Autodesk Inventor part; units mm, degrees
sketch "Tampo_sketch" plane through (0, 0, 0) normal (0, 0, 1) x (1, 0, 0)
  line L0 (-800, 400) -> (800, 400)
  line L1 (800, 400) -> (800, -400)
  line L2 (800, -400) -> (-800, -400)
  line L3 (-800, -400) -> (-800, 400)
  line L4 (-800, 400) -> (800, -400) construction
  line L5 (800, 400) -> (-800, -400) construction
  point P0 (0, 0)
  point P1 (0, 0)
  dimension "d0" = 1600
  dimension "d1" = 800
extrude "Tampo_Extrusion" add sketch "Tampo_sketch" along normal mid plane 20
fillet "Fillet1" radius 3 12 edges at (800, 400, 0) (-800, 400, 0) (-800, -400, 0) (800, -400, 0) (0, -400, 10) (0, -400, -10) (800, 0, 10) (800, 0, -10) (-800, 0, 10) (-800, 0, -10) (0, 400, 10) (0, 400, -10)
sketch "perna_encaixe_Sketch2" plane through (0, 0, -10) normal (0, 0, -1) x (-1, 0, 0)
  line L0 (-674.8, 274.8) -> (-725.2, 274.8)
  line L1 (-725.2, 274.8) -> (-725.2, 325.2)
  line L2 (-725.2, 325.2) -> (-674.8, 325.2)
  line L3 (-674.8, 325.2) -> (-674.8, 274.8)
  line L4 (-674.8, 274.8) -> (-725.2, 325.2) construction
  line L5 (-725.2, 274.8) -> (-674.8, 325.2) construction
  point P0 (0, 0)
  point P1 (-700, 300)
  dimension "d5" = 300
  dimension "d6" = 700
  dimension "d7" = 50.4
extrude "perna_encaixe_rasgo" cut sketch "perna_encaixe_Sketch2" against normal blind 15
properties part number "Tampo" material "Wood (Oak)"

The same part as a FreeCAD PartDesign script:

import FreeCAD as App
import Part
import Sketcher

doc = App.newDocument("Part")
body = doc.addObject("PartDesign::Body", "Body")

# Sketch on XY plane
sketch1 = body.newObject("Sketcher::SketchObject", "Sketch")
sketch1.AttachmentSupport = (doc.getObject("XY_Plane"), [""])
sketch1.MapMode = "FlatFace"
sketch1.addGeometry([
    Part.LineSegment(App.Vector(800, 400, 0), App.Vector(-800, 400, 0)),
    Part.LineSegment(App.Vector(-800, 400, 0), App.Vector(-800, -400, 0)),
    Part.LineSegment(App.Vector(-800, -400, 0), App.Vector(800, -400, 0)),
    Part.LineSegment(App.Vector(800, -400, 0), App.Vector(800, 400, 0)),
], False)
sketch1.addConstraint([
    Sketcher.Constraint("Coincident", 0, 2, 1, 1),
    Sketcher.Constraint("Coincident", 1, 2, 2, 1),
    Sketcher.Constraint("Coincident", 2, 2, 3, 1),
    Sketcher.Constraint("Coincident", 3, 2, 0, 1),
    Sketcher.Constraint("Horizontal", 0),
    Sketcher.Constraint("Vertical", 1),
    Sketcher.Constraint("Horizontal", 2),
    Sketcher.Constraint("Vertical", 3),
    Sketcher.Constraint("Symmetric", 0, 2, 2, 2, -1, 1),
    Sketcher.Constraint("DistanceX", 0, 2, 0, 1, 1600.0),
    Sketcher.Constraint("DistanceY", 1, 2, 1, 1, 800.0),
])
pad1 = body.newObject("PartDesign::Pad", "Pad")
pad1.Profile = sketch1
pad1.Length = 20
pad1.Midplane = True
doc.recompute()

fillet = body.newObject("PartDesign::Fillet", "Fillet")
fillet.Base = (pad1, ["Edge1"])
fillet.UseAllEdges = True
fillet.Radius = 3

# Sketch on XY plane
sketch2 = body.newObject("Sketcher::SketchObject", "Sketch001")
sketch2.AttachmentSupport = (doc.getObject("XY_Plane"), [""])
sketch2.MapMode = "FlatFace"
sketch2.AttachmentOffset = App.Placement(App.Vector(0, 0, -10), App.Rotation())
sketch2.addGeometry([
    Part.LineSegment(App.Vector(725, 275, 0), App.Vector(675, 275, 0)),
    Part.LineSegment(App.Vector(675, 275, 0), App.Vector(675, 325, 0)),
    Part.LineSegment(App.Vector(675, 325, 0), App.Vector(725, 325, 0)),
    Part.LineSegment(App.Vector(725, 325, 0), App.Vector(725, 275, 0)),
], False)
sketch2.addConstraint([
    Sketcher.Constraint("Coincident", 0, 2, 1, 1),
    Sketcher.Constraint("Coincident", 1, 2, 2, 1),
    Sketcher.Constraint("Coincident", 2, 2, 3, 1),
    Sketcher.Constraint("Coincident", 3, 2, 0, 1),
    Sketcher.Constraint("Horizontal", 0),
    Sketcher.Constraint("Vertical", 1),
    Sketcher.Constraint("Horizontal", 2),
    Sketcher.Constraint("Vertical", 3),
    Sketcher.Constraint("Equal", 2, 1),
    Sketcher.Constraint("DistanceX", 0, 2, 0, 1, 50.4),
    Sketcher.Constraint("DistanceX", -1, 1, 0, 2, 674.8),
    Sketcher.Constraint("DistanceY", -1, 1, 0, 2, 274.8),
])
pocket1 = body.newObject("PartDesign::Pocket", "Pocket")
pocket1.Profile = sketch2
pocket1.Length = 15
pocket1.Reversed = True

doc.recompute()
